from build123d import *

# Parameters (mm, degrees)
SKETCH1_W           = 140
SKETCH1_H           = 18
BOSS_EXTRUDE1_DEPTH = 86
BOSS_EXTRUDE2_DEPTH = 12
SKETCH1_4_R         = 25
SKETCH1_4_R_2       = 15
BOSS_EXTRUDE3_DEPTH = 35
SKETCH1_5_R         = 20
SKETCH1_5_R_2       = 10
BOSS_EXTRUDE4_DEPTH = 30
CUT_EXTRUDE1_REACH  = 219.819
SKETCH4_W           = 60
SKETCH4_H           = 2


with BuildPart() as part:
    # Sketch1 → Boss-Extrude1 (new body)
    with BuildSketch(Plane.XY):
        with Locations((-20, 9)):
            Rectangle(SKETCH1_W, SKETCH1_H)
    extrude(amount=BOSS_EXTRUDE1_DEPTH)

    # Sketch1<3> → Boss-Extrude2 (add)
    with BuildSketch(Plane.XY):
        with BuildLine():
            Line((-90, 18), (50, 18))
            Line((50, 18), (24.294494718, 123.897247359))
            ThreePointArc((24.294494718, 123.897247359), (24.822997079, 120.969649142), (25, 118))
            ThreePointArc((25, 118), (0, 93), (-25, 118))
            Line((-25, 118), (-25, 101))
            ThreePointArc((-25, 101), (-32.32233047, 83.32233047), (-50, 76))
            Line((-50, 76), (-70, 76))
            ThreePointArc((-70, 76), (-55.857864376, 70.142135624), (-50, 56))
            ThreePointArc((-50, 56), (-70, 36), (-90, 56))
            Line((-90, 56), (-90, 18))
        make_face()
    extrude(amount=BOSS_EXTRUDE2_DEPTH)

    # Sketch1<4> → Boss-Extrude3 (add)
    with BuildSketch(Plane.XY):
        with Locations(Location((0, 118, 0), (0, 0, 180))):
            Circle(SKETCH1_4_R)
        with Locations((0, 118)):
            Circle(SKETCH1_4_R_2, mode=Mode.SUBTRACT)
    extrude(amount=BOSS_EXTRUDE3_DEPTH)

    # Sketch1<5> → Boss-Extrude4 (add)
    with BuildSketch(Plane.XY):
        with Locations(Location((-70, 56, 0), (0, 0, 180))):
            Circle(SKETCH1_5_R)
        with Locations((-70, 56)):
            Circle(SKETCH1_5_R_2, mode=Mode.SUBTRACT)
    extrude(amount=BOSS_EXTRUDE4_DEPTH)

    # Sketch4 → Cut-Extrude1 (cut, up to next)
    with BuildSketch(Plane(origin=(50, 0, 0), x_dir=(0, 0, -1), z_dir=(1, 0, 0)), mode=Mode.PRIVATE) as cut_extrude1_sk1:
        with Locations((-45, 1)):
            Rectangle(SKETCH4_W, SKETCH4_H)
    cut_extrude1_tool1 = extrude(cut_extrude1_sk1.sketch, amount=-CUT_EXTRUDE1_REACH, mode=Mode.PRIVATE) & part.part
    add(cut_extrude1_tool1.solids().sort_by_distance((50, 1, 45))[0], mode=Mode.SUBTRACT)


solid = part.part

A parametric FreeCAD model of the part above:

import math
import FreeCAD as App
import Part
import Sketcher
Q = App.Units.Quantity


def add_polygon(sketch, points):
    """Adds a closed chain of lines whose ends are joined by coincident constraints."""
    first, n = sketch.GeometryCount, len(points)
    for a, b in zip(points, points[1:] + points[:1]):
        sketch.addGeometry(Part.LineSegment(App.Vector(*a, 0), App.Vector(*b, 0)), False)
    for i in range(n):
        sketch.addConstraint(Sketcher.Constraint("Coincident", first + i, 2, first + (i + 1) % n, 1))

doc = App.newDocument("Part")
body = doc.addObject("PartDesign::Body", "Body")

# Sketch on XY plane
sketch1 = body.newObject("Sketcher::SketchObject", "Sketch")
sketch1.AttachmentSupport = (doc.getObject("XY_Plane"), [""])
sketch1.MapMode = "FlatFace"
add_polygon(sketch1, [(-90, 18), (-90, 0), (50, 0), (50, 18)])  # lines 0-3
sketch1.addConstraint(Sketcher.Constraint("Vertical", 0))
sketch1.addConstraint(Sketcher.Constraint("Horizontal", 1))
sketch1.addConstraint(Sketcher.Constraint("Vertical", 2))
sketch1.addConstraint(Sketcher.Constraint("Horizontal", 3))
sketch1.addConstraint(Sketcher.Constraint("PointOnObject", 0, 2, -1))
sketch1.addConstraint(Sketcher.Constraint("DistanceX", 1, 1, 1, 2, Q("140 mm")))
sketch1.addConstraint(Sketcher.Constraint("DistanceY", 0, 2, 0, 1, Q("18 mm")))
sketch1.addConstraint(Sketcher.Constraint("DistanceX", 0, 2, -1, 1, Q("90 mm")))
pad1 = body.newObject("PartDesign::Pad", "Pad")
pad1.Profile = sketch1
pad1.Length = 86

# Sketch on XY plane
sketch2 = body.newObject("Sketcher::SketchObject", "Sketch001")
sketch2.AttachmentSupport = (doc.getObject("XY_Plane"), [""])
sketch2.MapMode = "FlatFace"
sketch2.addGeometry(Part.LineSegment(App.Vector(-90, 18, 0), App.Vector(50, 18, 0)), False)
sketch2.addGeometry(Part.LineSegment(App.Vector(50, 18, 0), App.Vector(24, 124, 0)), False)
sketch2.addGeometry(Part.ArcOfCircle(Part.Circle(App.Vector(0, 118, 0), App.Vector(0, 0, 1), 25), math.radians(0), math.radians(13.64)), False)
sketch2.addGeometry(Part.ArcOfCircle(Part.Circle(App.Vector(0, 118, 0), App.Vector(0, 0, 1), 25), math.radians(180), math.radians(360)), False)
sketch2.addGeometry(Part.LineSegment(App.Vector(-25, 118, 0), App.Vector(-25, 101, 0)), False)
sketch2.addGeometry(Part.ArcOfCircle(Part.Circle(App.Vector(-50, 101, 0), App.Vector(0, 0, 1), 25), math.radians(-90), math.radians(0)), False)
sketch2.addGeometry(Part.LineSegment(App.Vector(-50, 76, 0), App.Vector(-70, 76, 0)), False)
sketch2.addGeometry(Part.ArcOfCircle(Part.Circle(App.Vector(-70, 56, 0), App.Vector(0, 0, 1), 20), math.radians(0), math.radians(90)), False)
sketch2.addGeometry(Part.ArcOfCircle(Part.Circle(App.Vector(-70, 56, 0), App.Vector(0, 0, 1), 20), math.radians(180), math.radians(360)), False)
sketch2.addGeometry(Part.LineSegment(App.Vector(-90, 56, 0), App.Vector(-90, 18, 0)), False)
sketch2.addConstraint(Sketcher.Constraint("Coincident", 0, 2, 1, 1))
sketch2.addConstraint(Sketcher.Constraint("Tangent", 1, 2, 2, 2))
sketch2.addConstraint(Sketcher.Constraint("Tangent", 2, 1, 3, 2))
sketch2.addConstraint(Sketcher.Constraint("Tangent", 3, 1, 4, 1))
sketch2.addConstraint(Sketcher.Constraint("Tangent", 4, 2, 5, 2))
sketch2.addConstraint(Sketcher.Constraint("Tangent", 5, 1, 6, 1))
sketch2.addConstraint(Sketcher.Constraint("Tangent", 6, 2, 7, 2))
sketch2.addConstraint(Sketcher.Constraint("Tangent", 7, 1, 8, 2))
sketch2.addConstraint(Sketcher.Constraint("Tangent", 8, 1, 9, 1))
sketch2.addConstraint(Sketcher.Constraint("Coincident", 9, 2, 0, 1))
sketch2.addConstraint(Sketcher.Constraint("Horizontal", 0))
sketch2.addConstraint(Sketcher.Constraint("Vertical", 4))
sketch2.addConstraint(Sketcher.Constraint("Horizontal", 6))
sketch2.addConstraint(Sketcher.Constraint("Vertical", 9))
sketch2.addConstraint(Sketcher.Constraint("Equal", 2, 3))
sketch2.addConstraint(Sketcher.Constraint("Equal", 3, 5))
sketch2.addConstraint(Sketcher.Constraint("Equal", 7, 8))
sketch2.addConstraint(Sketcher.Constraint("Symmetric", 2, 1, 3, 1, -2))
sketch2.addConstraint(Sketcher.Constraint("Horizontal", 8, 3, 7, 1))
sketch2.addConstraint(Sketcher.Constraint("Vertical", 5, 1, 7, 1))
sketch2.addConstraint(Sketcher.Constraint("Radius", 2, Q("25 mm")))
sketch2.addConstraint(Sketcher.Constraint("Radius", 7, Q("20 mm")))
sketch2.addConstraint(Sketcher.Constraint("DistanceX", 0, 1, 0, 2, Q("140 mm")))
sketch2.addConstraint(Sketcher.Constraint("DistanceY", 4, 2, 4, 1, Q("17 mm")))
sketch2.addConstraint(Sketcher.Constraint("DistanceY", 9, 2, 9, 1, Q("38 mm")))
sketch2.addConstraint(Sketcher.Constraint("DistanceY", -1, 1, 2, 3, Q("118 mm")))
pad2 = body.newObject("PartDesign::Pad", "Pad001")
pad2.Profile = sketch2
pad2.Length = 12

# Sketch on XY plane
sketch3 = body.newObject("Sketcher::SketchObject", "Sketch002")
sketch3.AttachmentSupport = (doc.getObject("XY_Plane"), [""])
sketch3.MapMode = "FlatFace"
sketch3.addGeometry(Part.Circle(App.Vector(0, 118, 0), App.Vector(0, 0, 1), 25), False)
sketch3.addGeometry(Part.Circle(App.Vector(0, 118, 0), App.Vector(0, 0, 1), 15), False)
sketch3.addConstraint(Sketcher.Constraint("Coincident", 1, 3, 0, 3))
sketch3.addConstraint(Sketcher.Constraint("PointOnObject", 0, 3, -2))
sketch3.addConstraint(Sketcher.Constraint("Diameter", 0, Q("50 mm")))
sketch3.addConstraint(Sketcher.Constraint("Diameter", 1, Q("30 mm")))
sketch3.addConstraint(Sketcher.Constraint("DistanceY", -1, 1, 0, 3, Q("118 mm")))
pad3 = body.newObject("PartDesign::Pad", "Pad002")
pad3.Profile = sketch3
pad3.Length = 35

# Sketch on XY plane
sketch4 = body.newObject("Sketcher::SketchObject", "Sketch003")
sketch4.AttachmentSupport = (doc.getObject("XY_Plane"), [""])
sketch4.MapMode = "FlatFace"
sketch4.addGeometry(Part.Circle(App.Vector(-70, 56, 0), App.Vector(0, 0, 1), 20), False)
sketch4.addGeometry(Part.Circle(App.Vector(-70, 56, 0), App.Vector(0, 0, 1), 10), False)
sketch4.addConstraint(Sketcher.Constraint("Coincident", 1, 3, 0, 3))
sketch4.addConstraint(Sketcher.Constraint("Diameter", 0, Q("40 mm")))
sketch4.addConstraint(Sketcher.Constraint("Diameter", 1, Q("20 mm")))
sketch4.addConstraint(Sketcher.Constraint("DistanceX", 0, 3, -1, 1, Q("70 mm")))
sketch4.addConstraint(Sketcher.Constraint("DistanceY", -1, 1, 0, 3, Q("56 mm")))
pad4 = body.newObject("PartDesign::Pad", "Pad003")
pad4.Profile = sketch4
pad4.Length = 30

# Sketch on YZ plane
sketch5 = body.newObject("Sketcher::SketchObject", "Sketch004")
sketch5.AttachmentSupport = (doc.getObject("YZ_Plane"), [""])
sketch5.MapMode = "FlatFace"
sketch5.AttachmentOffset = App.Placement(App.Vector(0, 0, 50), App.Rotation())
add_polygon(sketch5, [(2, 75), (0, 75), (0, 15), (2, 15)])  # lines 0-3
sketch5.addConstraint(Sketcher.Constraint("Horizontal", 0))
sketch5.addConstraint(Sketcher.Constraint("Vertical", 1))
sketch5.addConstraint(Sketcher.Constraint("Horizontal", 2))
sketch5.addConstraint(Sketcher.Constraint("Vertical", 3))
sketch5.addConstraint(Sketcher.Constraint("PointOnObject", 0, 2, -2))
sketch5.addConstraint(Sketcher.Constraint("DistanceX", 0, 2, 0, 1, Q("2 mm")))
sketch5.addConstraint(Sketcher.Constraint("DistanceY", 1, 2, 1, 1, Q("60 mm")))
sketch5.addConstraint(Sketcher.Constraint("DistanceY", -1, 1, 0, 2, Q("75 mm")))
pocket1 = body.newObject("PartDesign::Pocket", "Pocket")
pocket1.Profile = sketch5
pocket1.Type = "UpToFirst"

doc.recompute()
